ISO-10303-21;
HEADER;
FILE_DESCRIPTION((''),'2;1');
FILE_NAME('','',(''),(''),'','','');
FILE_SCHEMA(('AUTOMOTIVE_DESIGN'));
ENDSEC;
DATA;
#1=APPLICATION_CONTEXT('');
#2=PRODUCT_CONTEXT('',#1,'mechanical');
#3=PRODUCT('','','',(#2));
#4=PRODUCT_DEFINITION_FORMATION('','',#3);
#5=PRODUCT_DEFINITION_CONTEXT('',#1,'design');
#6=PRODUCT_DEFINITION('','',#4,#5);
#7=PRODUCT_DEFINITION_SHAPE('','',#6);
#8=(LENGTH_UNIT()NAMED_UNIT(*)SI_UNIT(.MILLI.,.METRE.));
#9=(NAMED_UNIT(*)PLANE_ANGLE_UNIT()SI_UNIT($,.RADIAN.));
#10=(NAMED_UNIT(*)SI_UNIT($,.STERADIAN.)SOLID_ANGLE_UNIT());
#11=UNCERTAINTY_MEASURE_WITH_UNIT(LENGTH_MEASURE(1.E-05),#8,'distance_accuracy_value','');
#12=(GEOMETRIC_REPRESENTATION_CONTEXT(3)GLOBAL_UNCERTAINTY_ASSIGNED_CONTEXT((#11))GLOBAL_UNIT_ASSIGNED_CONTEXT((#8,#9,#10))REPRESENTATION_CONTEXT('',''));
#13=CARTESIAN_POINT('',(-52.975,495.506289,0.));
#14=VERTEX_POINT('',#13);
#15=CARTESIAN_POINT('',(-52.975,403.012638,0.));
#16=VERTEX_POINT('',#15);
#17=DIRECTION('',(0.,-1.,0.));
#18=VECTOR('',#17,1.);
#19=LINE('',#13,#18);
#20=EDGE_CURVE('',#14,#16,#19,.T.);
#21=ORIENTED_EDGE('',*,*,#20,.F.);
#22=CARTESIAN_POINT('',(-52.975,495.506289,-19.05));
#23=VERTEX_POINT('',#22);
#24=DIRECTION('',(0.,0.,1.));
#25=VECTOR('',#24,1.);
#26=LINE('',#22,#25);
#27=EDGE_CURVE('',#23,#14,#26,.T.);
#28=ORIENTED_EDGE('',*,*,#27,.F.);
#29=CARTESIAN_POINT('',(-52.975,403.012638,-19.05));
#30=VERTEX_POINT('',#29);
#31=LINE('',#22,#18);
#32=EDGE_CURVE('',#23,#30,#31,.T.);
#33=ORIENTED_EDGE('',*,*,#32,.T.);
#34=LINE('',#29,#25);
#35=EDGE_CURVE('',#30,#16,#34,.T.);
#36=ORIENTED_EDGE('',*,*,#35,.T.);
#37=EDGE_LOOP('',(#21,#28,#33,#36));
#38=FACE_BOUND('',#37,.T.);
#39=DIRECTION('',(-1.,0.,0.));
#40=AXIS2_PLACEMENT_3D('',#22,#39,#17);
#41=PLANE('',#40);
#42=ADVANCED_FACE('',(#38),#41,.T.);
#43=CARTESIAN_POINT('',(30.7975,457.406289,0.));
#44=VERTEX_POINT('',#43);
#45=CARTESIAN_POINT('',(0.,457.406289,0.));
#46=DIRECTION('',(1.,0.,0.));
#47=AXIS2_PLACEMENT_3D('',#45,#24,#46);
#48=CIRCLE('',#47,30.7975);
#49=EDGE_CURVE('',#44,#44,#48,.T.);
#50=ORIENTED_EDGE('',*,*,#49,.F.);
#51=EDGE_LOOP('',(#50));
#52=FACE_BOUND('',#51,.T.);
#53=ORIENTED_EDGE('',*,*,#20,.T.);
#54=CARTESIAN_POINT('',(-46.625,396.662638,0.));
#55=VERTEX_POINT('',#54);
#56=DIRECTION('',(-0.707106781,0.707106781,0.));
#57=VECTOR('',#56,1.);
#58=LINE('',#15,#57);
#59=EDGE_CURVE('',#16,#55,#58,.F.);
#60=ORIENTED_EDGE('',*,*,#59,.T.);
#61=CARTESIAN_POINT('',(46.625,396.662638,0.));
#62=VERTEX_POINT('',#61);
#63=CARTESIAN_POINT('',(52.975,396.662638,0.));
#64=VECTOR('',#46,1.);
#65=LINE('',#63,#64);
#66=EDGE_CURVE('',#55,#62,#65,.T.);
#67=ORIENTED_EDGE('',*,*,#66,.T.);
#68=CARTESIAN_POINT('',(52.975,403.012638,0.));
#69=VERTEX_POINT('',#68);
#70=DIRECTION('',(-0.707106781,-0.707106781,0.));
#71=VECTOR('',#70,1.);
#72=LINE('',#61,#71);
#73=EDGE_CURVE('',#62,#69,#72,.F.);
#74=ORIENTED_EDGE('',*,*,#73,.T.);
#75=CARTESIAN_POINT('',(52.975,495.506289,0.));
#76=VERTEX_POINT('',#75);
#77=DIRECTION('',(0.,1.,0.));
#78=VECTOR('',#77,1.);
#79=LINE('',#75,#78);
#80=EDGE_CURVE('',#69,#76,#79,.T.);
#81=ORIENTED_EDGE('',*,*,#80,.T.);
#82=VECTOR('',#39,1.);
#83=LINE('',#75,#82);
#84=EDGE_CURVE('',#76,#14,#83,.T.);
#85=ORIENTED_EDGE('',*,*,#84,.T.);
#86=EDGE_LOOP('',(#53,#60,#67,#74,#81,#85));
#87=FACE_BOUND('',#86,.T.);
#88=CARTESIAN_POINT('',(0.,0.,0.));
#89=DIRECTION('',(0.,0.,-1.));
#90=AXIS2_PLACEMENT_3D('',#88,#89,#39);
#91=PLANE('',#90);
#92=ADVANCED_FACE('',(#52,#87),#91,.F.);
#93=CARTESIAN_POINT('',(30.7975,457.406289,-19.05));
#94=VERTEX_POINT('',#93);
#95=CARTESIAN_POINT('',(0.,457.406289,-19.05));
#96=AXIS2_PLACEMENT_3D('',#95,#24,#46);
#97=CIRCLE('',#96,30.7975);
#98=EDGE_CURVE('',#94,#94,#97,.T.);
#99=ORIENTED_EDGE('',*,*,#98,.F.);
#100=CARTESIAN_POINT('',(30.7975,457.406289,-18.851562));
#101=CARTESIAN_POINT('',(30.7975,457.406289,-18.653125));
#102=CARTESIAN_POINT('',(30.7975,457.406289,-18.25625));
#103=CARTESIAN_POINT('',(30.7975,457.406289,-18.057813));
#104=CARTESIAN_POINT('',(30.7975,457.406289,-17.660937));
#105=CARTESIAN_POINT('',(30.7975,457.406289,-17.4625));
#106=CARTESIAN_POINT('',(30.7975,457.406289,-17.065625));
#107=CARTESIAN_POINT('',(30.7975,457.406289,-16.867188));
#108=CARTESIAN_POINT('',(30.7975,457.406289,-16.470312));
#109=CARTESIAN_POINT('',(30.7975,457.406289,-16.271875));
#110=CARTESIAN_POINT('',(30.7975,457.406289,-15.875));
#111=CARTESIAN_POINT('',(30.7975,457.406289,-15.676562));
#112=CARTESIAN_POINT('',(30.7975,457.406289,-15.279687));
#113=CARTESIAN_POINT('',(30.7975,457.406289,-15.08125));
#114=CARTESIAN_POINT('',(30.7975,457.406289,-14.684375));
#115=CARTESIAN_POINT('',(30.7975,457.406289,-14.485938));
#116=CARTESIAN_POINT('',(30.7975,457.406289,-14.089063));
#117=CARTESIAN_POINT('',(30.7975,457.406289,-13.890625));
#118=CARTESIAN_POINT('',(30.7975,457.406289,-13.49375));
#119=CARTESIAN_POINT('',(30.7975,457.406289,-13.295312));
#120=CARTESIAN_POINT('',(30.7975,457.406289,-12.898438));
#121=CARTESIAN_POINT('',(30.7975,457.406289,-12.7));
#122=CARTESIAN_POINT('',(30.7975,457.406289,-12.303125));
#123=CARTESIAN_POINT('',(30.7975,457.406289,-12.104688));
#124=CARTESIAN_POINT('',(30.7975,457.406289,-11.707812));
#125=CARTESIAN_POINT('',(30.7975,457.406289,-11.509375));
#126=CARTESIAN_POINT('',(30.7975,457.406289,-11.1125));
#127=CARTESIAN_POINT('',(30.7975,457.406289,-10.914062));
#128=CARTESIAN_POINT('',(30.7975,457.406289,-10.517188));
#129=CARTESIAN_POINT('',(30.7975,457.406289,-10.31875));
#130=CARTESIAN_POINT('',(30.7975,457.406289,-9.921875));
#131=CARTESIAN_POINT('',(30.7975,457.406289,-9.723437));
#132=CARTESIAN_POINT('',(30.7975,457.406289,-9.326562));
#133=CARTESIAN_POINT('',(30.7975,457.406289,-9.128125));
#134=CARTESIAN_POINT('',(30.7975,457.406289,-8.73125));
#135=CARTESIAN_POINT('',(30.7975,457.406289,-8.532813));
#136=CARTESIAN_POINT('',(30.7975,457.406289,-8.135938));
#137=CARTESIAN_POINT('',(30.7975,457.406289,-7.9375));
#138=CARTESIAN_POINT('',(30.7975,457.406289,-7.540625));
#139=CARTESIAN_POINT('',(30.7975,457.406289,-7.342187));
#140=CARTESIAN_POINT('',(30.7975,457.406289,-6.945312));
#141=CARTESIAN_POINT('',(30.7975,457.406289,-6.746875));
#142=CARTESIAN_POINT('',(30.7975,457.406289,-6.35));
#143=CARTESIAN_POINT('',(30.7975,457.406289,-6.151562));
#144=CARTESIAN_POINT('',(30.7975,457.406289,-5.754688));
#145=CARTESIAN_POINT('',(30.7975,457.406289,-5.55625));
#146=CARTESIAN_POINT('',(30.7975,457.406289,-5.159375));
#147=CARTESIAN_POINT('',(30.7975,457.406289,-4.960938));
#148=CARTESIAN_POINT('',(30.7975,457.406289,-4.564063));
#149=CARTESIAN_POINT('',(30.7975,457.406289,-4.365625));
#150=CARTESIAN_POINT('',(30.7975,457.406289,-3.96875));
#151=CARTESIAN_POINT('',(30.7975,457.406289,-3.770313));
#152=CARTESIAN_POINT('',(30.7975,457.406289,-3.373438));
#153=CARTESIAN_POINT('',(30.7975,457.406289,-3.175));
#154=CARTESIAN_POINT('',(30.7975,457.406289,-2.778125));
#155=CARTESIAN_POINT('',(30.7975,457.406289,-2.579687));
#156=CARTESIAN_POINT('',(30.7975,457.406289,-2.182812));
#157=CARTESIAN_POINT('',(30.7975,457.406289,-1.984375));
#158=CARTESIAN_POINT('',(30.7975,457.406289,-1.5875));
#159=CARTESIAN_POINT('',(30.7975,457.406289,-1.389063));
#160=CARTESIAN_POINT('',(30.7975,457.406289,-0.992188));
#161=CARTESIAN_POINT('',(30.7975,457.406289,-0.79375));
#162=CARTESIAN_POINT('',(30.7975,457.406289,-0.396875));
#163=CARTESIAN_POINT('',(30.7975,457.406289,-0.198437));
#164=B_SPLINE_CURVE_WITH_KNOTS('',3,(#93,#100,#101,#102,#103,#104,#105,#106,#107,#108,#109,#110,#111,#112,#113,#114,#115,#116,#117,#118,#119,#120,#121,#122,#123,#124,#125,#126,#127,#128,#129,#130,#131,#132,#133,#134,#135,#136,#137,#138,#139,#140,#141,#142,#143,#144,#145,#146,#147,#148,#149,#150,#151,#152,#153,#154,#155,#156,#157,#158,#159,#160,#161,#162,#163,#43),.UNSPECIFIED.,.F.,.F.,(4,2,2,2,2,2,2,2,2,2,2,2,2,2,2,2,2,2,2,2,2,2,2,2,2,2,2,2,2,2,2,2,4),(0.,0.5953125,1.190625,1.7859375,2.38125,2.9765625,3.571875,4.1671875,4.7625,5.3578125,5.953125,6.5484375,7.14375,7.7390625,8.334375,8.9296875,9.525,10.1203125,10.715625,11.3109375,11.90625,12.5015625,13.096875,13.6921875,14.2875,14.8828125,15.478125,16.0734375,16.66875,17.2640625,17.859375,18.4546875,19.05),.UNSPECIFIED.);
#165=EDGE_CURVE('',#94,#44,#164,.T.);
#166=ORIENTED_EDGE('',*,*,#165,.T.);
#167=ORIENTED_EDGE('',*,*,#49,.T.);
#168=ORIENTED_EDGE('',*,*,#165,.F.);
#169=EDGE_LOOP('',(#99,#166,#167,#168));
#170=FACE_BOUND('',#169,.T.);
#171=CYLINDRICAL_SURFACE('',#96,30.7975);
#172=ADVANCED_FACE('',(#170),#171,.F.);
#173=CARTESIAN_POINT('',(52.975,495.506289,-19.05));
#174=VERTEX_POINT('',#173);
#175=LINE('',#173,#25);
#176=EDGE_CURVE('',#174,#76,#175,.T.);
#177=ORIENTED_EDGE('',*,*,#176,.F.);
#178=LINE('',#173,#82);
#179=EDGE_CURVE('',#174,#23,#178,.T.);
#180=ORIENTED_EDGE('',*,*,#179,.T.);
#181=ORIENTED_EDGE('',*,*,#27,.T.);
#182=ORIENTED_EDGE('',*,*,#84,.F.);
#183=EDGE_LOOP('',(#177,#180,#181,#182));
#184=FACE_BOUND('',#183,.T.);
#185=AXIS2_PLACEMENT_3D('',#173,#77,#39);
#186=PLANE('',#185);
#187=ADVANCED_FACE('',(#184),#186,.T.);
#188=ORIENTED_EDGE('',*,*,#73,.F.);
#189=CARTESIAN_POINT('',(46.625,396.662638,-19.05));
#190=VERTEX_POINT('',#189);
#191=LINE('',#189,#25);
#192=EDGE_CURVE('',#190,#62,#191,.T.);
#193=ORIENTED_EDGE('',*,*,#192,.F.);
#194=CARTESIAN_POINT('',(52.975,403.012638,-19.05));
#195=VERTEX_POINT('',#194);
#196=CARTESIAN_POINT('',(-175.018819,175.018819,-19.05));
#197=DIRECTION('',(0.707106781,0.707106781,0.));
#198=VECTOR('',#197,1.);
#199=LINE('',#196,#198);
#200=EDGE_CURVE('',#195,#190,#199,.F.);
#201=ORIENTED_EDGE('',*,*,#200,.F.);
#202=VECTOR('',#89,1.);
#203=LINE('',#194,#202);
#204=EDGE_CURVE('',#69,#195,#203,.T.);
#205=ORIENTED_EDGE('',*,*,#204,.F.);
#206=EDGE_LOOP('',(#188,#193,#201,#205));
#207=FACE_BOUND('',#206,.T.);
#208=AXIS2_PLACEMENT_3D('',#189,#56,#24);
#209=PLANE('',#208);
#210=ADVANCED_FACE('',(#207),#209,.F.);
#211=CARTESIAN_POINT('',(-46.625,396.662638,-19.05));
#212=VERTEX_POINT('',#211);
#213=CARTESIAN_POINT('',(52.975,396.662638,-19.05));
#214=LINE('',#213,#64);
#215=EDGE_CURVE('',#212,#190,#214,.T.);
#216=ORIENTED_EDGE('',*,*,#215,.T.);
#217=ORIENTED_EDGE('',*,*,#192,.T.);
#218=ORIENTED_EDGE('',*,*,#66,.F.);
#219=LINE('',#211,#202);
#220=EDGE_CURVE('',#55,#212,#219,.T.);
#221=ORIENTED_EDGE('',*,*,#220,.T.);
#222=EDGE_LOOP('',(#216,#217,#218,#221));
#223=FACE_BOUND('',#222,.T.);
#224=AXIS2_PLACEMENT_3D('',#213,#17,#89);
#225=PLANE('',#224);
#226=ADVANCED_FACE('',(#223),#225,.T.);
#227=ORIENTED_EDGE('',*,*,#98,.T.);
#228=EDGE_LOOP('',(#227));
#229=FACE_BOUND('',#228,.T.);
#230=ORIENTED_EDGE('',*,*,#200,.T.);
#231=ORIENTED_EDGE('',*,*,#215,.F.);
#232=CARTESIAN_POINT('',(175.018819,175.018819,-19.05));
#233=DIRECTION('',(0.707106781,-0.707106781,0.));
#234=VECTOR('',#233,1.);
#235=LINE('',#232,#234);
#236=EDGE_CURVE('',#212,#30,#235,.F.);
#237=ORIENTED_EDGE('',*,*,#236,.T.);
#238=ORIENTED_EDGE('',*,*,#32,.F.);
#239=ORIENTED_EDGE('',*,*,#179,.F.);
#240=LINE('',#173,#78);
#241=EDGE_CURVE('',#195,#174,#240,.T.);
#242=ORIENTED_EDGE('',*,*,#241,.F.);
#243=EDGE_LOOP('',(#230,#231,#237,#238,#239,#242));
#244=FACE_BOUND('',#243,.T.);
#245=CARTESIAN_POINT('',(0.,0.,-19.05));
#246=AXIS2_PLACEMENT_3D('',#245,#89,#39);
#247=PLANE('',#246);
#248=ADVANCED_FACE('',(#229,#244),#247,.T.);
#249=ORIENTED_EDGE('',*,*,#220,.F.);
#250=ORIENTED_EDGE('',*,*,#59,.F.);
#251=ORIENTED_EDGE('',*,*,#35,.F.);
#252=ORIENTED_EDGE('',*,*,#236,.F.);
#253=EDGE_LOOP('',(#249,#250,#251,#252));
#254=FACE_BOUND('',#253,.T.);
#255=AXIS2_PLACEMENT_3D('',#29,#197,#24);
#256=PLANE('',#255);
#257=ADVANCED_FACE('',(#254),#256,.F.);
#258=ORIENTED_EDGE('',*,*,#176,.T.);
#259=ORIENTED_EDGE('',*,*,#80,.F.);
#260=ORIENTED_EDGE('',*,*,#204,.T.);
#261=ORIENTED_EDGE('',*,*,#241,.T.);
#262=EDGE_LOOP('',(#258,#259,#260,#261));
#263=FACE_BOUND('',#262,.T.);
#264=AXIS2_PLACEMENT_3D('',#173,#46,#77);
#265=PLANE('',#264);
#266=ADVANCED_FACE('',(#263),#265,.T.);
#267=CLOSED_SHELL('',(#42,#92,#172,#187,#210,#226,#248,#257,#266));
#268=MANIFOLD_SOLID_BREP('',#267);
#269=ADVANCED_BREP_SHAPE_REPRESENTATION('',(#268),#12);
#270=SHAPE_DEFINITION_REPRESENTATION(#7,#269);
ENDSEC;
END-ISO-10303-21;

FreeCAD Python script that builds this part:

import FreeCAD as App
import Part
import Sketcher
from FreeCAD import Vector
Q = App.Units.Quantity


def edges_at(feature, points):
    """Names of the edges that pass closest to the given points."""
    edges = feature.Shape.Edges
    near = lambda p: min(range(len(edges)), key=lambda i: edges[i].distToShape(Part.Vertex(*p))[0])
    return sorted({f"Edge{near(p) + 1}" for p in points})

doc = App.newDocument("Part")
body = doc.addObject("PartDesign::Body", "Body")

# Sketch on XY plane
sketch1 = doc.addObject("Sketcher::SketchObject", "Sketch")
body.addObject(sketch1)
sketch1.AttachmentSupport = (doc.XY_Plane, [""])
sketch1.MapMode = "FlatFace"
sketch1.addGeometry(Part.LineSegment(Vector(-53, 496, 0), Vector(-53, 397, 0)), False)
sketch1.addGeometry(Part.LineSegment(Vector(-53, 397, 0), Vector(53, 397, 0)), False)
sketch1.addGeometry(Part.LineSegment(Vector(53, 397, 0), Vector(53, 496, 0)), False)
sketch1.addGeometry(Part.LineSegment(Vector(53, 496, 0), Vector(-53, 496, 0)), False)
sketch1.addConstraint(Sketcher.Constraint("Coincident", 0, 2, 1, 1))
sketch1.addConstraint(Sketcher.Constraint("Coincident", 1, 2, 2, 1))
sketch1.addConstraint(Sketcher.Constraint("Coincident", 2, 2, 3, 1))
sketch1.addConstraint(Sketcher.Constraint("Coincident", 3, 2, 0, 1))
sketch1.addConstraint(Sketcher.Constraint("Vertical", 0))
sketch1.addConstraint(Sketcher.Constraint("Horizontal", 1))
sketch1.addConstraint(Sketcher.Constraint("Vertical", 2))
sketch1.addConstraint(Sketcher.Constraint("Horizontal", 3))
sketch1.addConstraint(Sketcher.Constraint("DistanceX", 1, 1, 1, 2, Q("105.95 mm")))
sketch1.addConstraint(Sketcher.Constraint("DistanceY", 0, 2, 0, 1, Q("98.843651 mm")))
sketch1.addConstraint(Sketcher.Constraint("DistanceX", 0, 2, -1, 1, Q("52.975 mm")))
sketch1.addConstraint(Sketcher.Constraint("DistanceY", -1, 1, 0, 2, Q("396.662638 mm")))
pad1 = doc.addObject("PartDesign::Pad", "Pad")
body.addObject(pad1)
pad1.Profile = sketch1
pad1.Length = Q("0.75 in")
pad1.Reversed = True

# Sketch on XY plane
sketch2 = doc.addObject("Sketcher::SketchObject", "Sketch001")
body.addObject(sketch2)
sketch2.AttachmentSupport = (doc.XY_Plane, [""])
sketch2.MapMode = "FlatFace"
sketch2.addGeometry(Part.Circle(Vector(0, 457, 0), Vector(0, 0, 1), 31), False)
sketch2.addConstraint(Sketcher.Constraint("PointOnObject", 0, 3, -2))
sketch2.addConstraint(Sketcher.Constraint("Diameter", 0, Q("2.425 in")))
sketch2.addConstraint(Sketcher.Constraint("DistanceY", -1, 1, 0, 3, Q("457.406289 mm")))
pocket1 = doc.addObject("PartDesign::Pocket", "Pocket")
body.addObject(pocket1)
pocket1.Profile = sketch2
pocket1.Type = "ThroughAll"
doc.recompute()

chamfer = doc.addObject("PartDesign::Chamfer", "Chamfer")
body.addObject(chamfer)
chamfer.Base = (pocket1, edges_at(pocket1, [(52.975, 396.663, -9.525), (-52.975, 396.663, -9.525)]))
chamfer.Size = Q("0.25 in")

doc.recompute()
